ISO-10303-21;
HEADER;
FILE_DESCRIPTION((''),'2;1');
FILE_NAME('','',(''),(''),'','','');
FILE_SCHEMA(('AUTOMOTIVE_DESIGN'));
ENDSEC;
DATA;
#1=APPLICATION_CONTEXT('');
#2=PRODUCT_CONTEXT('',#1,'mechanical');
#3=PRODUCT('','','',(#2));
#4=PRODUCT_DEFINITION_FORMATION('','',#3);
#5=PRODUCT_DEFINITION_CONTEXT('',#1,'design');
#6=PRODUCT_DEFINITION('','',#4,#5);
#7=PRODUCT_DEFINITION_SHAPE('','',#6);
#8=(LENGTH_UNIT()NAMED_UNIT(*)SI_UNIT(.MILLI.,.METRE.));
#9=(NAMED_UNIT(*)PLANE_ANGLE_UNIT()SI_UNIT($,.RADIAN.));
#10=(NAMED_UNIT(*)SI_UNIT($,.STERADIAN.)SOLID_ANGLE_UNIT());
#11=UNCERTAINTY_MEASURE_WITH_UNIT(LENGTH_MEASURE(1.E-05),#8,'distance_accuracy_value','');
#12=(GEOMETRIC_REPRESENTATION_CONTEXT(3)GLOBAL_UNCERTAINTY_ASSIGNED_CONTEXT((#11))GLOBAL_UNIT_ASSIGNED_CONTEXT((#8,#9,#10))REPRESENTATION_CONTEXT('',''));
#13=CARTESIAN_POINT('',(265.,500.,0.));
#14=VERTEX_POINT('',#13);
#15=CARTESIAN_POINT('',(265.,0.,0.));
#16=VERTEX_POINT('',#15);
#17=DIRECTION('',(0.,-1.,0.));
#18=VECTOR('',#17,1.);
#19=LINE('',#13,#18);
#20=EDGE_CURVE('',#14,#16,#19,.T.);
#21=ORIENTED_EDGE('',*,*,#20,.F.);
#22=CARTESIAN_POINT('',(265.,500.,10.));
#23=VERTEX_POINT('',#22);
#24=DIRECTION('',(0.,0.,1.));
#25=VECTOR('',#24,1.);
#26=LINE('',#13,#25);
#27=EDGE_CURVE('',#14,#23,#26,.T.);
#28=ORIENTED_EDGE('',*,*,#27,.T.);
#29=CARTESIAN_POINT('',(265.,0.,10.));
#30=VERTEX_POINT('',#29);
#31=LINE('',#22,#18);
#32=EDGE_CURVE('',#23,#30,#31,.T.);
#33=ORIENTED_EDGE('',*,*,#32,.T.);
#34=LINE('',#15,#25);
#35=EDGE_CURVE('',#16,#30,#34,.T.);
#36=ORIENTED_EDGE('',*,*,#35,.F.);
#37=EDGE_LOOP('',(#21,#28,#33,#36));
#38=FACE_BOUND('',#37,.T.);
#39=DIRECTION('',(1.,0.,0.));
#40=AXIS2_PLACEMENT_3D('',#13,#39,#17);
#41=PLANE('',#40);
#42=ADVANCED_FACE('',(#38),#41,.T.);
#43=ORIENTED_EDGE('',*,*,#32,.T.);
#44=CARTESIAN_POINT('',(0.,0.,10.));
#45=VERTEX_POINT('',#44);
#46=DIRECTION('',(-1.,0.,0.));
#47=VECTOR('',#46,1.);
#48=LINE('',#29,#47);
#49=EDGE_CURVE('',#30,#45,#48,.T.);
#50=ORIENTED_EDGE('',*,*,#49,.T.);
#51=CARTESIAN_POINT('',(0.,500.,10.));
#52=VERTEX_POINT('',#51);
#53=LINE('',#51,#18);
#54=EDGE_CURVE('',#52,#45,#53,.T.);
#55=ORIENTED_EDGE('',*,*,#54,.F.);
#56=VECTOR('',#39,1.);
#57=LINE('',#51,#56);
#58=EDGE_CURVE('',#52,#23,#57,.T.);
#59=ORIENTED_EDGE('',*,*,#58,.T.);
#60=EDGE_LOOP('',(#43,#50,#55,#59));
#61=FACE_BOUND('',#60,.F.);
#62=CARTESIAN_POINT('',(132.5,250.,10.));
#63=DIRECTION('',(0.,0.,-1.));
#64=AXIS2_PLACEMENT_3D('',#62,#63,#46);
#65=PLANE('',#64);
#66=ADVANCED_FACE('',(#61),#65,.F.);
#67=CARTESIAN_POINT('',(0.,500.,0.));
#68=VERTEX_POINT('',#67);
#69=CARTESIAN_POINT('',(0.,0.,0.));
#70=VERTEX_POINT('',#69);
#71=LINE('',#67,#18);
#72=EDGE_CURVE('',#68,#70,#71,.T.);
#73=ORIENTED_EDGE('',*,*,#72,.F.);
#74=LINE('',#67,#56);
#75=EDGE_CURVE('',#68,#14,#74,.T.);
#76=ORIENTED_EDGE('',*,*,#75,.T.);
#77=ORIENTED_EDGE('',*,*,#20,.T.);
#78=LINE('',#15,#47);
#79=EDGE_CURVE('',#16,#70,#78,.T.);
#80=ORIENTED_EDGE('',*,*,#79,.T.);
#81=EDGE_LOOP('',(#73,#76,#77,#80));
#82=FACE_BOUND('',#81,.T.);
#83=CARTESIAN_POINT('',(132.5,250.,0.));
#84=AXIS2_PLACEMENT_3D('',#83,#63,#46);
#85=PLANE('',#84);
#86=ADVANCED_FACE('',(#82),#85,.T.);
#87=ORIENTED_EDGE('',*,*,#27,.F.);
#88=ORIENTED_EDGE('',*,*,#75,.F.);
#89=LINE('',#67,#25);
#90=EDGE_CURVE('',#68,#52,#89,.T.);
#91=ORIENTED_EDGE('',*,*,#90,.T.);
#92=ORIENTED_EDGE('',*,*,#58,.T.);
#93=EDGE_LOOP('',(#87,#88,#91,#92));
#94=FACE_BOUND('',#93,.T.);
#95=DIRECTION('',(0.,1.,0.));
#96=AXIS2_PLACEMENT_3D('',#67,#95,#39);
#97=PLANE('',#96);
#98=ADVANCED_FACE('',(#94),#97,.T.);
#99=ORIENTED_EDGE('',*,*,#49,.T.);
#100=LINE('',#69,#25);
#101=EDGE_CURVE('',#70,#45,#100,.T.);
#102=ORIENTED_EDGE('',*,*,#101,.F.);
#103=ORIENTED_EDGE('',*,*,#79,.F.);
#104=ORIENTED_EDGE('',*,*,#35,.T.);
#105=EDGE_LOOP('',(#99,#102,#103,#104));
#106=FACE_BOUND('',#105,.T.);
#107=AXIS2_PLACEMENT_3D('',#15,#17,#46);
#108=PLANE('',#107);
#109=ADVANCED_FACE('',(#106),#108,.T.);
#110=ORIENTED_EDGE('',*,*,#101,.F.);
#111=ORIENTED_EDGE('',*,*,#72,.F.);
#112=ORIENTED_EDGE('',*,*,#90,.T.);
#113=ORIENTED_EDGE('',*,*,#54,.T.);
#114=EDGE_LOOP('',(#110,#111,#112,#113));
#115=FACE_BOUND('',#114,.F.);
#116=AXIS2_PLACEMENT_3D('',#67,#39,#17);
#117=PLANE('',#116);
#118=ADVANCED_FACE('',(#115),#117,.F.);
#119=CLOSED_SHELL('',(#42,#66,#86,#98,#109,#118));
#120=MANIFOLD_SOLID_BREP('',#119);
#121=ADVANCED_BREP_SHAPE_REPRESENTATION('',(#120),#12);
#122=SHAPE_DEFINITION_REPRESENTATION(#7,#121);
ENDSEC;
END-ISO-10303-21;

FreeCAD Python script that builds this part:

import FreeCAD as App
import Part
import Sketcher

doc = App.newDocument("Part")
body = doc.addObject("PartDesign::Body", "Body")

# Sketch on XY plane
sketch1 = body.newObject("Sketcher::SketchObject", "Sketch")
sketch1.AttachmentSupport = (doc.getObject("XY_Plane"), [""])
sketch1.MapMode = "FlatFace"
sketch1.addGeometry(Part.LineSegment(App.Vector(265, 500, 0), App.Vector(0, 500, 0)), False)
sketch1.addGeometry(Part.LineSegment(App.Vector(0, 500, 0), App.Vector(0, 0, 0)), False)
sketch1.addGeometry(Part.LineSegment(App.Vector(0, 0, 0), App.Vector(265, 0, 0)), False)
sketch1.addGeometry(Part.LineSegment(App.Vector(265, 0, 0), App.Vector(265, 500, 0)), False)
sketch1.addConstraint(Sketcher.Constraint("Coincident", 0, 2, 1, 1))
sketch1.addConstraint(Sketcher.Constraint("Coincident", 1, 2, 2, 1))
sketch1.addConstraint(Sketcher.Constraint("Coincident", 2, 2, 3, 1))
sketch1.addConstraint(Sketcher.Constraint("Coincident", 3, 2, 0, 1))
sketch1.addConstraint(Sketcher.Constraint("Horizontal", 0))
sketch1.addConstraint(Sketcher.Constraint("Vertical", 1))
sketch1.addConstraint(Sketcher.Constraint("Horizontal", 2))
sketch1.addConstraint(Sketcher.Constraint("Vertical", 3))
sketch1.addConstraint(Sketcher.Constraint("Coincident", 1, 2, -1, 1))
sketch1.addConstraint(Sketcher.Constraint("DistanceX", 0, 2, 0, 1, 265.0))
sketch1.addConstraint(Sketcher.Constraint("DistanceY", 1, 2, 1, 1, 500.0))
pad1 = body.newObject("PartDesign::Pad", "Pad")
pad1.Profile = sketch1
pad1.Length = 10

doc.recompute()
